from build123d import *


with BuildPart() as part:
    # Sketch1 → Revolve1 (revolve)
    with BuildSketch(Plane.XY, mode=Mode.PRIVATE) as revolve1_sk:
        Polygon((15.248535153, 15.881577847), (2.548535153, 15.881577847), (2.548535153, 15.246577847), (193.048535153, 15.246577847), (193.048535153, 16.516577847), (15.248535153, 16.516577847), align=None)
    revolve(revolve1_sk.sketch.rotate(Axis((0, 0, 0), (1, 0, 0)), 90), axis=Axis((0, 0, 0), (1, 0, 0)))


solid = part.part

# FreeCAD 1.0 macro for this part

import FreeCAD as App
import Part
import Sketcher
Q = App.Units.Quantity


def add_polygon(sketch, points):
    """Adds a closed chain of lines whose ends are joined by coincident constraints."""
    first, n = sketch.GeometryCount, len(points)
    for a, b in zip(points, points[1:] + points[:1]):
        sketch.addGeometry(Part.LineSegment(App.Vector(*a, 0), App.Vector(*b, 0)), False)
    for i in range(n):
        sketch.addConstraint(Sketcher.Constraint("Coincident", first + i, 2, first + (i + 1) % n, 1))

doc = App.newDocument("Part")
params = doc.addObject("Spreadsheet::Sheet", "Params")
for row, (alias, value) in enumerate([
    ("sketch1_width", "7 in"),
    ("sketch1_width2", "0.5 in"),
    ("sketch1_height", "0.05 in"),
    ("revolution_angle", "360 deg"),
], start=1):
    params.set(f"A{row}", alias)
    params.set(f"B{row}", "=" + value)
    params.setAlias(f"B{row}", alias)

body = doc.addObject("PartDesign::Body", "Body")

# Sketch on XY plane
sketch1 = body.newObject("Sketcher::SketchObject", "Sketch")
sketch1.AttachmentSupport = (doc.getObject("XY_Plane"), [""])
sketch1.MapMode = "FlatFace"
add_polygon(sketch1, [(15.2, 15.9), (2.5, 15.9), (2.5, 15.2), (193, 15.2), (193, 16.5), (15.2, 16.5)])  # lines 0-5
sketch1.addConstraint(Sketcher.Constraint("Horizontal", 0))
sketch1.addConstraint(Sketcher.Constraint("Vertical", 1))
sketch1.addConstraint(Sketcher.Constraint("Horizontal", 2))
sketch1.addConstraint(Sketcher.Constraint("Vertical", 3))
sketch1.addConstraint(Sketcher.Constraint("Horizontal", 4))
sketch1.addConstraint(Sketcher.Constraint("Vertical", 5))
sketch1.addConstraint(Sketcher.Constraint("Equal", 1, 5))
sketch1.addConstraint(Sketcher.Constraint("DistanceX", 4, 2, 4, 1, Q("7 in")))
sketch1.addConstraint(Sketcher.Constraint("DistanceX", 0, 2, 0, 1, Q("0.5 in")))
sketch1.addConstraint(Sketcher.Constraint("DistanceY", 3, 1, 3, 2, Q("0.05 in")))
sketch1.addConstraint(Sketcher.Constraint("DistanceX", -1, 1, 0, 2, 2.548535))
sketch1.addConstraint(Sketcher.Constraint("DistanceY", -1, 1, 0, 2, 15.881578))
sketch1.setExpression("Constraints[13]", "Params.sketch1_width")
sketch1.setExpression("Constraints[14]", "Params.sketch1_width2")
sketch1.setExpression("Constraints[15]", "Params.sketch1_height")
revolution = body.newObject("PartDesign::Revolution", "Revolution")
revolution.Profile = sketch1
revolution.ReferenceAxis = (sketch1, ["H_Axis"])
revolution.setExpression("Angle", "Params.revolution_angle")

doc.recompute()
